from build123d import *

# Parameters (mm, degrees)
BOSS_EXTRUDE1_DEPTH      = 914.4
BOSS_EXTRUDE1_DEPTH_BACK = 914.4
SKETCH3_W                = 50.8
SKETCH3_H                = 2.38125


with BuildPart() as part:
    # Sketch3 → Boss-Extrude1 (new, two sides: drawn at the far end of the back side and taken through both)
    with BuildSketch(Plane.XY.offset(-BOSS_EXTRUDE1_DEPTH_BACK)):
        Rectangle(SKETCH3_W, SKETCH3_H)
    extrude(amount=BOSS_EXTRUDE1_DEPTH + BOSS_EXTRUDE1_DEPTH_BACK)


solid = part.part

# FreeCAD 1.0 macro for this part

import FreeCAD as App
import Part
import Sketcher
Q = App.Units.Quantity


def add_polygon(sketch, points):
    """Adds a closed chain of lines whose ends are joined by coincident constraints."""
    first, n = sketch.GeometryCount, len(points)
    for a, b in zip(points, points[1:] + points[:1]):
        sketch.addGeometry(Part.LineSegment(App.Vector(*a, 0), App.Vector(*b, 0)), False)
    for i in range(n):
        sketch.addConstraint(Sketcher.Constraint("Coincident", first + i, 2, first + (i + 1) % n, 1))

doc = App.newDocument("Part")
body = doc.addObject("PartDesign::Body", "Body")

# Sketch on XY plane
sketch1 = doc.addObject("Sketcher::SketchObject", "Sketch")
body.addObject(sketch1)
sketch1.AttachmentSupport = (doc.XY_Plane, [""])
sketch1.MapMode = "FlatFace"
add_polygon(sketch1, [(-25.4, 1.2), (-25.4, -1.2), (25.4, -1.2), (25.4, 1.2)])  # lines 0-3
sketch1.addConstraint([
    Sketcher.Constraint("Vertical", 0),
    Sketcher.Constraint("Horizontal", 1),
    Sketcher.Constraint("Vertical", 2),
    Sketcher.Constraint("Horizontal", 3),
    Sketcher.Constraint("Symmetric", 0, 2, 2, 2, -1, 1),
    Sketcher.Constraint("DistanceX", 1, 1, 1, 2, Q("2 in")),
    Sketcher.Constraint("DistanceY", 0, 2, 0, 1, Q("0.09375 in")),
])
pad1 = doc.addObject("PartDesign::Pad", "Pad")
body.addObject(pad1)
pad1.Profile = sketch1
pad1.Type = "TwoLengths"
pad1.Length = Q("36 in")
pad1.Length2 = Q("36 in")

doc.recompute()
